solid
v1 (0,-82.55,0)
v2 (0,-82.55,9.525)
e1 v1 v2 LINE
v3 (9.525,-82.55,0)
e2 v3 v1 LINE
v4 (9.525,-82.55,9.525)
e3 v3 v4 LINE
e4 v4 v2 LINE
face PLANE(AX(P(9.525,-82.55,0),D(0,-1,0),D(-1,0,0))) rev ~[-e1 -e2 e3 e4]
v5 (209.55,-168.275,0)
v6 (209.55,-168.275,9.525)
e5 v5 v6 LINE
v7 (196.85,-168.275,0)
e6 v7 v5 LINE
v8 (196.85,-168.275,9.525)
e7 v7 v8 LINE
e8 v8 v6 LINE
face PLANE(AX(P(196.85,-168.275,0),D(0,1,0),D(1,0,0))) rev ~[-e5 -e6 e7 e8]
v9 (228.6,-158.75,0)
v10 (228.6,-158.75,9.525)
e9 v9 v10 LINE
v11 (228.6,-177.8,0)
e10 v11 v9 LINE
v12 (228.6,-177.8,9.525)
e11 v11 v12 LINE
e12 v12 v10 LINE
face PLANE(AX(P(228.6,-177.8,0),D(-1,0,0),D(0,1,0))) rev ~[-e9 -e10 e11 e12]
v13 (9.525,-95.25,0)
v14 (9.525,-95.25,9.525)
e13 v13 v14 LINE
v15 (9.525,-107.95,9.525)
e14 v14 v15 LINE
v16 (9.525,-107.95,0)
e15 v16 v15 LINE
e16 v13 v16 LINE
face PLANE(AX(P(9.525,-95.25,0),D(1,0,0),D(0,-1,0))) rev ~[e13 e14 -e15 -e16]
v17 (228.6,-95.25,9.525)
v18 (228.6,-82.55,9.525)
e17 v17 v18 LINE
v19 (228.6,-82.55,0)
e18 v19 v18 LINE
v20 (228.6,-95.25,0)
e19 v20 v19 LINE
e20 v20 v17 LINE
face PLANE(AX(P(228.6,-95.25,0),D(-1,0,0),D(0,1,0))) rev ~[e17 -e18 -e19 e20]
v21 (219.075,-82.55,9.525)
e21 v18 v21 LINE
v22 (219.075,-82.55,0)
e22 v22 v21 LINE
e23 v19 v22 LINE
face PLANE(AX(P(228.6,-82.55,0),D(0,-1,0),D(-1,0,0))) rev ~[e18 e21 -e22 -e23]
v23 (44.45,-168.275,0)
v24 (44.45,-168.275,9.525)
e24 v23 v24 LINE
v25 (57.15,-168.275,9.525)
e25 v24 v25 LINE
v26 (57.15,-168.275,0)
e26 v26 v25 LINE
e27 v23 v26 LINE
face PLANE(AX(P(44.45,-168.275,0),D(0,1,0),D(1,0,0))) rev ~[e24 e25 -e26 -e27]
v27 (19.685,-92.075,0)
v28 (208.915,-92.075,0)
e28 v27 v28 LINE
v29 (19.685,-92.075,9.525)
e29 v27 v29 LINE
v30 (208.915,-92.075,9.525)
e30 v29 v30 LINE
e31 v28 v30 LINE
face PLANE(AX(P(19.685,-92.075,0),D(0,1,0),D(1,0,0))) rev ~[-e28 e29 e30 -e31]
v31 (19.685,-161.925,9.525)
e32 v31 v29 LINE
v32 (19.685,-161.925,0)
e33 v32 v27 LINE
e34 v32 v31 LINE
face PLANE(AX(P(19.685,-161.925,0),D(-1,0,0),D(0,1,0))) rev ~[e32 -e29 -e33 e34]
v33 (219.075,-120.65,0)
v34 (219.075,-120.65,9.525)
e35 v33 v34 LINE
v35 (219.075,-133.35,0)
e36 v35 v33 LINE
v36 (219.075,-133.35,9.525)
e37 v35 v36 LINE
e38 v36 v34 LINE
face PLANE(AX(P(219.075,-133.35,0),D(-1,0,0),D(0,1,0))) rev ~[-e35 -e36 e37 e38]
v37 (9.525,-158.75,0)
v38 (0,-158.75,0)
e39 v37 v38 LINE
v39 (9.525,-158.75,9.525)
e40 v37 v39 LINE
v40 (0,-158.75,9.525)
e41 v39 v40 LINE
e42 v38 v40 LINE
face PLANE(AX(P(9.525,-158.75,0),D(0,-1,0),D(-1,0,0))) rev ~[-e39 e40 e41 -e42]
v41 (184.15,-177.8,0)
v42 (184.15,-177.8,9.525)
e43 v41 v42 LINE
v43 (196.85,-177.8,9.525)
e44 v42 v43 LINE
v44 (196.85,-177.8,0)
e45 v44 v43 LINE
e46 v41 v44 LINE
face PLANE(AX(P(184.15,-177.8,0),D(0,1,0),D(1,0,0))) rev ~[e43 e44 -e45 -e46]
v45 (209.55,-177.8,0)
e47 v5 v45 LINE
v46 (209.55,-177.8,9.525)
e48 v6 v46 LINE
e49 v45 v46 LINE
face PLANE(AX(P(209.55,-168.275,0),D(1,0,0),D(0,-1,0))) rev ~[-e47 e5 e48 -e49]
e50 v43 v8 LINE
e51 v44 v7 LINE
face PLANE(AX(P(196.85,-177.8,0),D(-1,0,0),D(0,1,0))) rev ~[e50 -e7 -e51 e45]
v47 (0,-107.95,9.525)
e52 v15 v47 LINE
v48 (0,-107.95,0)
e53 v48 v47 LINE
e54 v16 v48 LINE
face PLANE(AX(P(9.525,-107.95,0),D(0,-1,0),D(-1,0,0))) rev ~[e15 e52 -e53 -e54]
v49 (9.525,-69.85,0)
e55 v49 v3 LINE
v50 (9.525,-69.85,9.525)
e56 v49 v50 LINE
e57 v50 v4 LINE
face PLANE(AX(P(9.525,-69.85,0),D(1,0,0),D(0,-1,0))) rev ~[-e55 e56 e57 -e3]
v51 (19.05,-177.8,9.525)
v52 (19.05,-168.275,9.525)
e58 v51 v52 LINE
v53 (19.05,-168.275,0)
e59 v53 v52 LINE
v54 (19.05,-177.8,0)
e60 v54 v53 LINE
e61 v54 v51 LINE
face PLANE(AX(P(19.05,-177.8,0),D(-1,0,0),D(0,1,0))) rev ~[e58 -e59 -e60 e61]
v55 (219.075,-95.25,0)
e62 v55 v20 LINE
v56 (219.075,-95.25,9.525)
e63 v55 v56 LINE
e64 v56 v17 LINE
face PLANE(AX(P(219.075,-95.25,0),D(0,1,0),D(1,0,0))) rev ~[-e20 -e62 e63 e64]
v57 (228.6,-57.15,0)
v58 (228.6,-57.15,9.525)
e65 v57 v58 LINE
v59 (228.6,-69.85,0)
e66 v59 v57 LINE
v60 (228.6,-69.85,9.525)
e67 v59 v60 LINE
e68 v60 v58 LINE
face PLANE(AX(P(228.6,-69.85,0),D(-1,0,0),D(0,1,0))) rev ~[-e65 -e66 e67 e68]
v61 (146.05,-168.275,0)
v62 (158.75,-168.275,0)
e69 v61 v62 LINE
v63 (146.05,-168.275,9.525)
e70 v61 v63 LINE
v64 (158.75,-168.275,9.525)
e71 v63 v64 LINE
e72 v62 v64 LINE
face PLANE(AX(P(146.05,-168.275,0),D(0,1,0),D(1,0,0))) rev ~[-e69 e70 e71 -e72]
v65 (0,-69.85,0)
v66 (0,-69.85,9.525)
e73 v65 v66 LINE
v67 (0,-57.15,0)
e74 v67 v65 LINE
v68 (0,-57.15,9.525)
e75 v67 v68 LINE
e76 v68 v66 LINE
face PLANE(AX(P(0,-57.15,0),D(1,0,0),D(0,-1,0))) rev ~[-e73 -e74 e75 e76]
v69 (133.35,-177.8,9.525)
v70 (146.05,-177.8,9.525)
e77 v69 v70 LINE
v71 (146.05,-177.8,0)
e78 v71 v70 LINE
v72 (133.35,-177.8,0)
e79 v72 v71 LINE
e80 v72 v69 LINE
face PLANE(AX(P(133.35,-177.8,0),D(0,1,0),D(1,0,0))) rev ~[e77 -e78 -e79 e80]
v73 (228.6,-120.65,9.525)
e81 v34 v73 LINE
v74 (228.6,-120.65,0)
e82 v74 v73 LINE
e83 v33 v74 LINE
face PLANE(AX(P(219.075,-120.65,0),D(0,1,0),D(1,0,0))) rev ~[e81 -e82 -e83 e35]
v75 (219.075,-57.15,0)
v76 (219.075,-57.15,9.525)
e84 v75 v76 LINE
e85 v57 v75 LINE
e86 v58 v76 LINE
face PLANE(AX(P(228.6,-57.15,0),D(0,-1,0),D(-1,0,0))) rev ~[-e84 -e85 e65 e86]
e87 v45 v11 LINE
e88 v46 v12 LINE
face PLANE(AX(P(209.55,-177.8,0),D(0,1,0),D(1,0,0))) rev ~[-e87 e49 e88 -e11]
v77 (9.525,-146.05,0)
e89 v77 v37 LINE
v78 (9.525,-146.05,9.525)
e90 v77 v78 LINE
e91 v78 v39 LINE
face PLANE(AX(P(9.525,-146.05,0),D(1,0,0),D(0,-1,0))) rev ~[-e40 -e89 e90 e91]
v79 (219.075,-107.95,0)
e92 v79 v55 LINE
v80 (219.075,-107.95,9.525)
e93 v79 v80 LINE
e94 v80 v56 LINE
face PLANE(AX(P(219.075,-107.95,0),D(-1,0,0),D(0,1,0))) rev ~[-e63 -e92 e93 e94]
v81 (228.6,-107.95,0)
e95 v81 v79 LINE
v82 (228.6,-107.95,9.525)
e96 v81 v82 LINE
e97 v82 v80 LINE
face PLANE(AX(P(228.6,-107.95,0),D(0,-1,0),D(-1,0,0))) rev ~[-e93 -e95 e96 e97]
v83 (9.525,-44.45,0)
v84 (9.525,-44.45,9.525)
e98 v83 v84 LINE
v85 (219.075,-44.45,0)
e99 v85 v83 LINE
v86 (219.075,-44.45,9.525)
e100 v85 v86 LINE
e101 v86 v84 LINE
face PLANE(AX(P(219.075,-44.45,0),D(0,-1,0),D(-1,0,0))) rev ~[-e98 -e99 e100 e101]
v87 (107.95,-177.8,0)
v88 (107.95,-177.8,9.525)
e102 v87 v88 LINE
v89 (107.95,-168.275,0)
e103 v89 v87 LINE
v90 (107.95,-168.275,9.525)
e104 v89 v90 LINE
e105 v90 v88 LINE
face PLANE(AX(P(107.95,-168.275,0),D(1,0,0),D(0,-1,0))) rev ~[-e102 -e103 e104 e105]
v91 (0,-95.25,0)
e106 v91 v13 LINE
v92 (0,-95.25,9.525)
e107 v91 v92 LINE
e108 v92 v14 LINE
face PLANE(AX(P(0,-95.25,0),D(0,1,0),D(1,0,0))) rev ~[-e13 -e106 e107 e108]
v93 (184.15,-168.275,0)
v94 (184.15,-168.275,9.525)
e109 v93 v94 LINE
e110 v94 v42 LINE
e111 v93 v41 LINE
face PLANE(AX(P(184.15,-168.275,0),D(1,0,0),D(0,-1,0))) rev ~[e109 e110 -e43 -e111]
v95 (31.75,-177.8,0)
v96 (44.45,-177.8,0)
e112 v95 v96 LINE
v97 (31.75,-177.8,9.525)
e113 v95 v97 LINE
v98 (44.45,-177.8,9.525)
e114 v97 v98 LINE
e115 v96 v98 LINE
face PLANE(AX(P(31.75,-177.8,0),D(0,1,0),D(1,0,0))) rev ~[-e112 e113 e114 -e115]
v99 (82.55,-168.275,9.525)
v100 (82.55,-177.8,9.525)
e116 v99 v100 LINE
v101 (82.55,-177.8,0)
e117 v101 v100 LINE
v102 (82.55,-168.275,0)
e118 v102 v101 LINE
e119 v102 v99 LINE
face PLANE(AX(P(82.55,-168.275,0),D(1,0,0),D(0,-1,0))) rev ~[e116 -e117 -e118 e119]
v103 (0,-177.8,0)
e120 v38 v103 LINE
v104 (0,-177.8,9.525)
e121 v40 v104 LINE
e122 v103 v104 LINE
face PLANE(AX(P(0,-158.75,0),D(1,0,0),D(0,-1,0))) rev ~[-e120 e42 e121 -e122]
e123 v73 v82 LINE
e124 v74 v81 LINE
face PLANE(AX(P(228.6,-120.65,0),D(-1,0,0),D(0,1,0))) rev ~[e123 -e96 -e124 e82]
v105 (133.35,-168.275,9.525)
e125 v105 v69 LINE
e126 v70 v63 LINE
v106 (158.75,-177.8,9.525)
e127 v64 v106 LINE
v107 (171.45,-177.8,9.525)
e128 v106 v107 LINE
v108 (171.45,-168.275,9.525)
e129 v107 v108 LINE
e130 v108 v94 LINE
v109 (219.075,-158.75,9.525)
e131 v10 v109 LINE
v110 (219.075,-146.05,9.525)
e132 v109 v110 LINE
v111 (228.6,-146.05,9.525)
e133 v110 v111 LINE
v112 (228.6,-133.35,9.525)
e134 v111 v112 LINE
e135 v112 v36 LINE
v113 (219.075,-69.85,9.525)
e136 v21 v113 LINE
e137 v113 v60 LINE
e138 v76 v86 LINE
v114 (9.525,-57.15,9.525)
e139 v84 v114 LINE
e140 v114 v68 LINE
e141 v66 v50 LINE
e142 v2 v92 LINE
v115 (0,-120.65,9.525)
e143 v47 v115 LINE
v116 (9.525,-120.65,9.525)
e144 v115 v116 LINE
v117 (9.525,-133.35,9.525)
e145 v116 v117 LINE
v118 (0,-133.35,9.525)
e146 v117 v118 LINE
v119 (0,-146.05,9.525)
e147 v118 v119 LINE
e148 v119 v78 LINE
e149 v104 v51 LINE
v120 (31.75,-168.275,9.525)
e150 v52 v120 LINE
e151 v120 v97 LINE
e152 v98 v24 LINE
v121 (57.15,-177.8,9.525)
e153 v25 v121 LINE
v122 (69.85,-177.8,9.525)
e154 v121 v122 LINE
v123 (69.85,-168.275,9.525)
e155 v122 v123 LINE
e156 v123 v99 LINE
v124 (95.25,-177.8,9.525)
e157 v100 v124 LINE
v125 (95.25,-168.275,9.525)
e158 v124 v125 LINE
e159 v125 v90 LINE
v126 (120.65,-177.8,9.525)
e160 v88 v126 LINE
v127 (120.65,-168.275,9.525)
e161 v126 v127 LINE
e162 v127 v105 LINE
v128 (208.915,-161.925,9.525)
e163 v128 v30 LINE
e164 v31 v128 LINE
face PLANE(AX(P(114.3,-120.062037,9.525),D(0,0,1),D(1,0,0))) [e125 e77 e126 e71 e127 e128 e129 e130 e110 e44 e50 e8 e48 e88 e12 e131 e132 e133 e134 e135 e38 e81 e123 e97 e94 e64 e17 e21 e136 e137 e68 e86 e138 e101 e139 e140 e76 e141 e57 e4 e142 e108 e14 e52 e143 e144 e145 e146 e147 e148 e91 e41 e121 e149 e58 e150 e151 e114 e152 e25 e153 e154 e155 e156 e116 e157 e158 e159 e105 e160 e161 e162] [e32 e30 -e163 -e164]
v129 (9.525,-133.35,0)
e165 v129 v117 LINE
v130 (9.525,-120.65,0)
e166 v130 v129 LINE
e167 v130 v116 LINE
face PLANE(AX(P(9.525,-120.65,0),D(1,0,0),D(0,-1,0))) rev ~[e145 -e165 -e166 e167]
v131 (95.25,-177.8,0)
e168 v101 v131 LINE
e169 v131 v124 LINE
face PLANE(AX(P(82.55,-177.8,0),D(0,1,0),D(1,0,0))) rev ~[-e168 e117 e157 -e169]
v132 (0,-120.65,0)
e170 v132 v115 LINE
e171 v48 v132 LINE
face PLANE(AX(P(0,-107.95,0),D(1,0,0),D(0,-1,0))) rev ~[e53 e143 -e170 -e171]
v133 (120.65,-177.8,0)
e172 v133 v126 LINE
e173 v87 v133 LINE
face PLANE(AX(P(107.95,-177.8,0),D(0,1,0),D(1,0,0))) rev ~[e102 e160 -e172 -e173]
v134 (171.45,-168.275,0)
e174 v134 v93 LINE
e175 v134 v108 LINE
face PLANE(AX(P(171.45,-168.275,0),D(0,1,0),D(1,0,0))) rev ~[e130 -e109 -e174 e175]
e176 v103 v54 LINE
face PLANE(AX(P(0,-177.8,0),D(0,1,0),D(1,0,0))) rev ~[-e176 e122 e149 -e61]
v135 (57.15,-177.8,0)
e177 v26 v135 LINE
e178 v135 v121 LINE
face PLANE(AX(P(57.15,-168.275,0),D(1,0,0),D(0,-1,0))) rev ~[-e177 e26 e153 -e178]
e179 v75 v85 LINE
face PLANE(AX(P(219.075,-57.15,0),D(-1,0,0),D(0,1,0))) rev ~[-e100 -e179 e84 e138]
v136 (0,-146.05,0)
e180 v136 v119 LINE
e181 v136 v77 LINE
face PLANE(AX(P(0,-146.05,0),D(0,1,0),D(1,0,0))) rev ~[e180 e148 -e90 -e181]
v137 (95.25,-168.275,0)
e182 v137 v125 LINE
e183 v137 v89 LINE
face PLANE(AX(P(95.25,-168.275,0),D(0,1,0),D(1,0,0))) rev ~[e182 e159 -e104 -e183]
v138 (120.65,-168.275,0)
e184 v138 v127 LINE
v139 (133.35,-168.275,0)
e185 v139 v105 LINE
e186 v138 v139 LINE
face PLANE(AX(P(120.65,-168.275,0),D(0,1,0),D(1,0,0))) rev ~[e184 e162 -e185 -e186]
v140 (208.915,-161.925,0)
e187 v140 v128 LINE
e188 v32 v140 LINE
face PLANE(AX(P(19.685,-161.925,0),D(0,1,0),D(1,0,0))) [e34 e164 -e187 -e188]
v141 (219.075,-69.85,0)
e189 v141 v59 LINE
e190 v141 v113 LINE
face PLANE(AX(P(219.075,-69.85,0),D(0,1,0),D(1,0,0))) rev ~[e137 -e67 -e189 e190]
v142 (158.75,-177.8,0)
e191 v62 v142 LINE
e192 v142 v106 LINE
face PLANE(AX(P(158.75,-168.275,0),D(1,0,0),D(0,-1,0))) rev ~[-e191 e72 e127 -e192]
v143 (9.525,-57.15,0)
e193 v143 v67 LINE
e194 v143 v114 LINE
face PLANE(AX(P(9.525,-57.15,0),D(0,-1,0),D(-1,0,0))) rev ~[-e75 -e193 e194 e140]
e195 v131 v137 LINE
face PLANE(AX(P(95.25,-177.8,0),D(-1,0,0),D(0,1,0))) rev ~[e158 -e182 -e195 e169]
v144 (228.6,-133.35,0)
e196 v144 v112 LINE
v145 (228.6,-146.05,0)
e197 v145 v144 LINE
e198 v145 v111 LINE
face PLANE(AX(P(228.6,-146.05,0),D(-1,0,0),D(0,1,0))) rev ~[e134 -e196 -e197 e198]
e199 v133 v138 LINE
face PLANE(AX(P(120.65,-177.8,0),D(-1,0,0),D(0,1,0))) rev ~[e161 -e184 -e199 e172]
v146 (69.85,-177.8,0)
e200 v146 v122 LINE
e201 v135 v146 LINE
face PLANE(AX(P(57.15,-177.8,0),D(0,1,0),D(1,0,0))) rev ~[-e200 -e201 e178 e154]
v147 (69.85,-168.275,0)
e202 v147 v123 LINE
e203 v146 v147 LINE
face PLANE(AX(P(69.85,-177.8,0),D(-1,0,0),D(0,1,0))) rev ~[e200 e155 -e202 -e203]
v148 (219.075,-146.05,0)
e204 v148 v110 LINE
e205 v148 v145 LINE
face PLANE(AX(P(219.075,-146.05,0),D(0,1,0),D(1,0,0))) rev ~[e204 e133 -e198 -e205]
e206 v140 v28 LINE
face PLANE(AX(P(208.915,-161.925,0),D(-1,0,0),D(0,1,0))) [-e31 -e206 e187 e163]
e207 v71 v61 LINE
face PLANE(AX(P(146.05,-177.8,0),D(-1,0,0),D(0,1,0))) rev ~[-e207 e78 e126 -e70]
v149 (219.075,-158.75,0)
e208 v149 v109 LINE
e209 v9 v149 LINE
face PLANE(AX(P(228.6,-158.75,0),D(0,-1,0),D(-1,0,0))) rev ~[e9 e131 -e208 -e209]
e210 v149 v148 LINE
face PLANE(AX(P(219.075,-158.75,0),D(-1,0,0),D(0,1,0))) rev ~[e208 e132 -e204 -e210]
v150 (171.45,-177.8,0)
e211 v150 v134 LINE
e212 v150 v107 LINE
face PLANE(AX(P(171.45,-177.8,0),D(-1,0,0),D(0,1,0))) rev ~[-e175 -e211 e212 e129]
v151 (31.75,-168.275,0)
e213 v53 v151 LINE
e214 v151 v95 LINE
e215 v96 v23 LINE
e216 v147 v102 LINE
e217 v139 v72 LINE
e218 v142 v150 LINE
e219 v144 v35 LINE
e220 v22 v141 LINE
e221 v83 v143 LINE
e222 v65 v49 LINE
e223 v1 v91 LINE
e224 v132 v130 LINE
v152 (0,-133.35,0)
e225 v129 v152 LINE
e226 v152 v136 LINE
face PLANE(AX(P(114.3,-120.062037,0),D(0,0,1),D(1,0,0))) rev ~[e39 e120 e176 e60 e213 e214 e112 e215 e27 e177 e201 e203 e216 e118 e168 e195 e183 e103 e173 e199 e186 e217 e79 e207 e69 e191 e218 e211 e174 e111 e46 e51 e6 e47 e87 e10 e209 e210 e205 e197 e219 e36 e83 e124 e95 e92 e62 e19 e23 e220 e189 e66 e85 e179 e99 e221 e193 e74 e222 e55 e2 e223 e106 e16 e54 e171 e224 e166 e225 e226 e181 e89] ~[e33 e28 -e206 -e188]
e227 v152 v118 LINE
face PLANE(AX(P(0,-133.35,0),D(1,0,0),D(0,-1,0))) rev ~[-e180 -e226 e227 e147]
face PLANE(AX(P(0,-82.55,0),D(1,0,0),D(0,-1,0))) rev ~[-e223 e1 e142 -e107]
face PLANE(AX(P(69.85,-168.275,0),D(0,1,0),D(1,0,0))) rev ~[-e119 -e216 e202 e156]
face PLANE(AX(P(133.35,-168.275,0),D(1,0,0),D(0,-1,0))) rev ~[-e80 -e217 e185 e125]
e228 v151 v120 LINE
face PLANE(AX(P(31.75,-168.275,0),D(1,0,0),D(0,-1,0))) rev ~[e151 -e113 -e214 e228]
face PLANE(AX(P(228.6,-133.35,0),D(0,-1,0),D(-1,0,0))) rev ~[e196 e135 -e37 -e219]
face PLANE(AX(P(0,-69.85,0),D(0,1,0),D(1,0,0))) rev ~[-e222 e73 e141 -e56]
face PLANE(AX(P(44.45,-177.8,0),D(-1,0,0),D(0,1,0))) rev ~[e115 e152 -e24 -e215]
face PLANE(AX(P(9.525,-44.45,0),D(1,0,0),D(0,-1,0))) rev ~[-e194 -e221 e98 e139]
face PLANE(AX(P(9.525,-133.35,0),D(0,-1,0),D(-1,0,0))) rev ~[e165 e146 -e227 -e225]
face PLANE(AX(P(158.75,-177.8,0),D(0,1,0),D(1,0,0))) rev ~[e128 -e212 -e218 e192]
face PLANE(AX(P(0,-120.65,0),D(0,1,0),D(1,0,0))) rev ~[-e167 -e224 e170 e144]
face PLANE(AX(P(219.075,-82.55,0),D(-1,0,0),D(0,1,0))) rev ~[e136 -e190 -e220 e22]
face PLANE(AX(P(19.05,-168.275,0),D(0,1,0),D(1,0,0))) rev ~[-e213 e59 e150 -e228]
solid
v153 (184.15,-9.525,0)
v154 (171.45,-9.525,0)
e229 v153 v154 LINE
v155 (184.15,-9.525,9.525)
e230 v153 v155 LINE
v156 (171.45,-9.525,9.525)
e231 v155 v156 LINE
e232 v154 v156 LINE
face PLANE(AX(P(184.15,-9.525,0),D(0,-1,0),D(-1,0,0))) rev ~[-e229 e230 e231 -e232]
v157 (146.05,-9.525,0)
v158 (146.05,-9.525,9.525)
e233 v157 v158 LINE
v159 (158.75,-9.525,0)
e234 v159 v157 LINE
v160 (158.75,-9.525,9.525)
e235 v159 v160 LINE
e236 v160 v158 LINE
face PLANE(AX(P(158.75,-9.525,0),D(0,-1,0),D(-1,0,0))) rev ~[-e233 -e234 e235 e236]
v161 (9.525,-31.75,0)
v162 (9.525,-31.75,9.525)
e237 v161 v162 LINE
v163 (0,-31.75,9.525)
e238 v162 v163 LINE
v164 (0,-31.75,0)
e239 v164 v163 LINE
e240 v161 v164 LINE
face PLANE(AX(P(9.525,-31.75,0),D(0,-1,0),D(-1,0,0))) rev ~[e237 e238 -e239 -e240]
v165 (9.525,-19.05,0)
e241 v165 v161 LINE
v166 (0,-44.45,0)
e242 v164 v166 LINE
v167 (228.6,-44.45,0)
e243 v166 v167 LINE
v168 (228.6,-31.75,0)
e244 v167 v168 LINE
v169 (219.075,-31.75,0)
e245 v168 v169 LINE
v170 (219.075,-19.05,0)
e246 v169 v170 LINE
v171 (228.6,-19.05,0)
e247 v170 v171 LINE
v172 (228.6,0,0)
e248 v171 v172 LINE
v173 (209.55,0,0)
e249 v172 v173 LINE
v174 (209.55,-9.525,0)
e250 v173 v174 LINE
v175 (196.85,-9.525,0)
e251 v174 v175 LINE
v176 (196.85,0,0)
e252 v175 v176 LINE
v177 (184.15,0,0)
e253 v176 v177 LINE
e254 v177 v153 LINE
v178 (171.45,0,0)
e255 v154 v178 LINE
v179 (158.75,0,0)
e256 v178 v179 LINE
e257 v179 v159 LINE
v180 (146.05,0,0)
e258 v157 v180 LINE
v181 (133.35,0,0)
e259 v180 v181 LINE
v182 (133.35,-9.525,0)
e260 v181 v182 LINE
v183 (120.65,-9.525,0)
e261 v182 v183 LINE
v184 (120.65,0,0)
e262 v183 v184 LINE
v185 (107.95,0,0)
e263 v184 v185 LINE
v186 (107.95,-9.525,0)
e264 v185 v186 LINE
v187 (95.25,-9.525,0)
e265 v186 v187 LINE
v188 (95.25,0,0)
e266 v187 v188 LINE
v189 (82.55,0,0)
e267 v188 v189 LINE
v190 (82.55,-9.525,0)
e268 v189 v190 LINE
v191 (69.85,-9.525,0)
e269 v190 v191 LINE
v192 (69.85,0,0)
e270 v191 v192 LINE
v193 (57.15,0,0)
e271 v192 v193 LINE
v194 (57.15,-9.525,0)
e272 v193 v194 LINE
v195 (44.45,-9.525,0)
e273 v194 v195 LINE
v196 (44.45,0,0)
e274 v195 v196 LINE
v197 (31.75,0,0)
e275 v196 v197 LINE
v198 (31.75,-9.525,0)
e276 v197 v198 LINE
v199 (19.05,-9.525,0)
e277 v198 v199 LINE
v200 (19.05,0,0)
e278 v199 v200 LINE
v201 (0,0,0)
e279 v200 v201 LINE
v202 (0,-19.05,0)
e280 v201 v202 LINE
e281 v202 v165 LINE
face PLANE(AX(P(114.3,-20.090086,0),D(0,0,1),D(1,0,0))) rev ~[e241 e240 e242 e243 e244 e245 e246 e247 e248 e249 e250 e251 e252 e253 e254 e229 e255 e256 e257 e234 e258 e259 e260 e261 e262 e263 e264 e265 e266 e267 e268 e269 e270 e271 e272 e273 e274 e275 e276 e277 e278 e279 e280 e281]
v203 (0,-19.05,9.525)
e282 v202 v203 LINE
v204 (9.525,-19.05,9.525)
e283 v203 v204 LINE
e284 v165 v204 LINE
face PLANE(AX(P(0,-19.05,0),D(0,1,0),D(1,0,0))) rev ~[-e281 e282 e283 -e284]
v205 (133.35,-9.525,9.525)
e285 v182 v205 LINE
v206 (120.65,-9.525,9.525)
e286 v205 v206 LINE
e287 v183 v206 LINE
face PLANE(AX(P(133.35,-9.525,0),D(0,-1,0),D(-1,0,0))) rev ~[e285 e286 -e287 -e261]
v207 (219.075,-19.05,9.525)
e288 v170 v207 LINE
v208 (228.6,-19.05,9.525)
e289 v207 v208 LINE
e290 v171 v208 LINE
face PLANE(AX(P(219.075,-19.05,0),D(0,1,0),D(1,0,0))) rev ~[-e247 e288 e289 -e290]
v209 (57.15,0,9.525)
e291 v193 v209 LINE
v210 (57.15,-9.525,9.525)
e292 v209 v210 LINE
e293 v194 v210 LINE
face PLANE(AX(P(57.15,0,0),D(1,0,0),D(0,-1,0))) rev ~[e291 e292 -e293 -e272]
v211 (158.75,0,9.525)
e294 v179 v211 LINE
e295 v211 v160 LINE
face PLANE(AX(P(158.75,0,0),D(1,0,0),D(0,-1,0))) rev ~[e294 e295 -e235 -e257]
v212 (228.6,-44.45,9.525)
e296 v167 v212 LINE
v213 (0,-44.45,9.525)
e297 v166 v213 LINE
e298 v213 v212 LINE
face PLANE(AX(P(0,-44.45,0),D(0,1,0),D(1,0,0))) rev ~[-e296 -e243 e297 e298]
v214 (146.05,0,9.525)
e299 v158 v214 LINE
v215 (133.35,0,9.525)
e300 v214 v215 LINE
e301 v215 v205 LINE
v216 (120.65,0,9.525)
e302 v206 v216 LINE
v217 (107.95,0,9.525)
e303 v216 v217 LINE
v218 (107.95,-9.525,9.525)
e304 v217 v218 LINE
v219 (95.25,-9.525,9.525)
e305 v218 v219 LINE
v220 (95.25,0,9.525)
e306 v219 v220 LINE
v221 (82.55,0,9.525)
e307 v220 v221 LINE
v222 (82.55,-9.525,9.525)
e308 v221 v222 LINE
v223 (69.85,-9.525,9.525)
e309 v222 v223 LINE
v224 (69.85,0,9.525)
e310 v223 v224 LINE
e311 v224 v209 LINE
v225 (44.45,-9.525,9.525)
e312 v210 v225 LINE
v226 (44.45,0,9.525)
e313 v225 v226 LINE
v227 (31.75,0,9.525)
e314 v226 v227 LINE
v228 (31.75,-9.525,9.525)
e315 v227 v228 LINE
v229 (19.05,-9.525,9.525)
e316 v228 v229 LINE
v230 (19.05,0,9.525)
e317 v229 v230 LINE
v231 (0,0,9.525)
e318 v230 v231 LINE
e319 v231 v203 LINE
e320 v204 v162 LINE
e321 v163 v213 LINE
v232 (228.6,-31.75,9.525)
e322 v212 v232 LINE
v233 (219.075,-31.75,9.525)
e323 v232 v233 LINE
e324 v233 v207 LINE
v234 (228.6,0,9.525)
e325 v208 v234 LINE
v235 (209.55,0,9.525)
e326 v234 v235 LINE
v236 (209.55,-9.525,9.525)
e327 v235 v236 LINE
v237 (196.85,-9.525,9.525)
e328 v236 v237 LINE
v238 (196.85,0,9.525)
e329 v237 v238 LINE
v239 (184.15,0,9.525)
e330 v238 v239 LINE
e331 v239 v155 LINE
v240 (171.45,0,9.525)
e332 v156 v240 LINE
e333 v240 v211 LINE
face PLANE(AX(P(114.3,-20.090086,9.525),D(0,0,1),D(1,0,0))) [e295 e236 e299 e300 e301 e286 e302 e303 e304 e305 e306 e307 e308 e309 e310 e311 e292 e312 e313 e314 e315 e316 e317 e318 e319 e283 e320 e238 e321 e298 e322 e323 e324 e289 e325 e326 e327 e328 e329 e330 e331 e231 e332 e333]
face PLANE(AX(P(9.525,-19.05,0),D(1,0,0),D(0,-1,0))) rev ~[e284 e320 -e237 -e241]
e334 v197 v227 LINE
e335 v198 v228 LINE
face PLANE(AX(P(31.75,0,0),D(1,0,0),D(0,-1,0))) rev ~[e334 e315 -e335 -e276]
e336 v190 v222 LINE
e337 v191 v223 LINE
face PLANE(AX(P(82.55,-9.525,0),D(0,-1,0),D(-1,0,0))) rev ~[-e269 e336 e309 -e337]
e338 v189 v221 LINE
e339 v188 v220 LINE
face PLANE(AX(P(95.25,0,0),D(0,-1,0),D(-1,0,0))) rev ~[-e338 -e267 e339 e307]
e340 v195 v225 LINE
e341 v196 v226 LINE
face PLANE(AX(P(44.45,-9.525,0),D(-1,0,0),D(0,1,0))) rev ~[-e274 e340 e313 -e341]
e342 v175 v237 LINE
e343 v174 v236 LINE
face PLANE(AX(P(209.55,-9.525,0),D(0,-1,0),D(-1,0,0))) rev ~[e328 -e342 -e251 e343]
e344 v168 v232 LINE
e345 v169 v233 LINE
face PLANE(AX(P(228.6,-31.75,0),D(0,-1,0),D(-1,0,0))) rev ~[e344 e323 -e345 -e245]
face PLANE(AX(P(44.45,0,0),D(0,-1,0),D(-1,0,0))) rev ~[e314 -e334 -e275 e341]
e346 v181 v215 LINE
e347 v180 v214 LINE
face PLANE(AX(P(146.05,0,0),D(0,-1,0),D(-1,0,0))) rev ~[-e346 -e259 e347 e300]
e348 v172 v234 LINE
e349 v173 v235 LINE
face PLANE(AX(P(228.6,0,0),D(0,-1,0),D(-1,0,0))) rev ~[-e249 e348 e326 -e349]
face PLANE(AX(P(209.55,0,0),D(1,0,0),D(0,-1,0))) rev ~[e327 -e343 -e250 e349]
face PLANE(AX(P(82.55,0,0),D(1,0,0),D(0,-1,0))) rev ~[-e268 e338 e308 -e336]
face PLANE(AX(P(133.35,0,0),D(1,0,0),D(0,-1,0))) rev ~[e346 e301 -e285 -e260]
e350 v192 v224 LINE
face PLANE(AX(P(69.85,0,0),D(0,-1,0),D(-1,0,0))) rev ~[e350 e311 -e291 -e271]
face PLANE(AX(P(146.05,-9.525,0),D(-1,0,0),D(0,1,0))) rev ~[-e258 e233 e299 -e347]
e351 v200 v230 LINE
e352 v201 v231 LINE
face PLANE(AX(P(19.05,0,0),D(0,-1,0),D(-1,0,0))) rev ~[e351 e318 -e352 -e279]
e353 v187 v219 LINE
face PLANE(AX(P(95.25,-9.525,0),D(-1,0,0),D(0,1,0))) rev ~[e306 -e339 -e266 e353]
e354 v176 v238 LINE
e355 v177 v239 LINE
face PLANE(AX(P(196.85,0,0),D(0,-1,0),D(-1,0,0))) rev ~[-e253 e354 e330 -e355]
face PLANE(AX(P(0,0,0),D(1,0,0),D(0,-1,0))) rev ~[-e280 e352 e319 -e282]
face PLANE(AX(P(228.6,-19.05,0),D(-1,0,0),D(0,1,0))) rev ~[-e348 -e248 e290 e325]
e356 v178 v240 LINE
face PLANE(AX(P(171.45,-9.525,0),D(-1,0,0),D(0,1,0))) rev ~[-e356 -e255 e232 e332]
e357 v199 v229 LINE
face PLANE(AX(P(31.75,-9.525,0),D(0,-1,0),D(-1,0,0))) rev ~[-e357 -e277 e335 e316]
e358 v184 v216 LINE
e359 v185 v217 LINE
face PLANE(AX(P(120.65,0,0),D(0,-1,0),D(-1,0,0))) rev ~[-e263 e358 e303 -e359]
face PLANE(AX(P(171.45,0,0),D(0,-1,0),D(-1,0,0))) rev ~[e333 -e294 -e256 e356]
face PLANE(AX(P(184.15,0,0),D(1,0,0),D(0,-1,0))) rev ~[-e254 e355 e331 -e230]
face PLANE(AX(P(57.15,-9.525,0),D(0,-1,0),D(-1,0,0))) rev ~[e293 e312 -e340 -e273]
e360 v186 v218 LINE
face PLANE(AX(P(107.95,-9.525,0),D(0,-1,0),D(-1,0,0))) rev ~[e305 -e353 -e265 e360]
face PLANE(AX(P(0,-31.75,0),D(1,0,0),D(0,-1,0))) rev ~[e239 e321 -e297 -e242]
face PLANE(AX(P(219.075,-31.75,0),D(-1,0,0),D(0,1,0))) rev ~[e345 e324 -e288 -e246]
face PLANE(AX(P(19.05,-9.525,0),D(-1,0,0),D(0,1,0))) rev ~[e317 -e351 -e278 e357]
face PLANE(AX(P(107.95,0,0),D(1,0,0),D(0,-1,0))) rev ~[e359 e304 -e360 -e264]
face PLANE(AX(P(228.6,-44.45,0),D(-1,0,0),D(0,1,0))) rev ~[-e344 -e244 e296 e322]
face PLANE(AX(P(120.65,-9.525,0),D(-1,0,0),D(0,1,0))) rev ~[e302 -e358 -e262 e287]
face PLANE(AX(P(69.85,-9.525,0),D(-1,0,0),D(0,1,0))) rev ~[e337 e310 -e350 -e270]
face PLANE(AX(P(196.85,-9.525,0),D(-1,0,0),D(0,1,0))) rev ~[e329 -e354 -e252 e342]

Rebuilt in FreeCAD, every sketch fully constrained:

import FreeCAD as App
import Part
import Sketcher

V = App.Vector
Q = App.Units.Quantity

doc = App.newDocument("Part")
params = doc.addObject("Spreadsheet::Sheet", "Params")
for row, (alias, value) in enumerate([
    ("sketch1_width", "9 in"),
    ("sketch1_width2", "0.5 in"),
    ("sketch1_width3", "0.375 in"),
    ("pad1_length", "0.375 in"),
    ("sketch2_width", "0.5 in"),
    ("sketch2_width2", "8.25 in"),
    ("sketch2_width3", "7.45 in"),
    ("sketch2_height", "2.75 in"),
    ("pad2_length", "0.375 in"),
], start=1):
    params.set(f"A{row}", alias)
    params.set(f"B{row}", "=" + value)
    params.setAlias(f"B{row}", alias)

body = doc.addObject("PartDesign::Body", "Body")

# Sketch on XY plane
sketch1 = doc.addObject("Sketcher::SketchObject", "Sketch")
body.addObject(sketch1)
sketch1.AttachmentSupport = (doc.XY_Plane, [""])
sketch1.MapMode = "FlatFace"
sketch1.addGeometry([
    Part.LineSegment(V(19, 0, 0), V(0, 0, 0)),  # 0
    Part.LineSegment(V(0, 0, 0), V(0, -19, 0)),  # 1
    Part.LineSegment(V(0, -19, 0), V(10, -19, 0)),  # 2
    Part.LineSegment(V(10, -19, 0), V(10, -32, 0)),  # 3
    Part.LineSegment(V(10, -32, 0), V(0, -32, 0)),  # 4
    Part.LineSegment(V(0, -32, 0), V(0, -44, 0)),  # 5
    Part.LineSegment(V(0, -44, 0), V(229, -44, 0)),  # 6
    Part.LineSegment(V(229, -44, 0), V(229, -32, 0)),  # 7
    Part.LineSegment(V(229, -32, 0), V(219, -32, 0)),  # 8
    Part.LineSegment(V(219, -32, 0), V(219, -19, 0)),  # 9
    Part.LineSegment(V(219, -19, 0), V(229, -19, 0)),  # 10
    Part.LineSegment(V(229, -19, 0), V(229, 0, 0)),  # 11
    Part.LineSegment(V(229, 0, 0), V(210, 0, 0)),  # 12
    Part.LineSegment(V(210, 0, 0), V(210, -10, 0)),  # 13
    Part.LineSegment(V(210, -10, 0), V(197, -10, 0)),  # 14
    Part.LineSegment(V(197, -10, 0), V(197, 0, 0)),  # 15
    Part.LineSegment(V(197, 0, 0), V(184, 0, 0)),  # 16
    Part.LineSegment(V(184, 0, 0), V(184, -10, 0)),  # 17
    Part.LineSegment(V(184, -10, 0), V(171, -10, 0)),  # 18
    Part.LineSegment(V(171, -10, 0), V(171, 0, 0)),  # 19
    Part.LineSegment(V(171, 0, 0), V(159, 0, 0)),  # 20
    Part.LineSegment(V(159, 0, 0), V(159, -10, 0)),  # 21
    Part.LineSegment(V(159, -10, 0), V(146, -10, 0)),  # 22
    Part.LineSegment(V(146, -10, 0), V(146, 0, 0)),  # 23
    Part.LineSegment(V(146, 0, 0), V(133, 0, 0)),  # 24
    Part.LineSegment(V(133, 0, 0), V(133, -10, 0)),  # 25
    Part.LineSegment(V(133, -10, 0), V(121, -10, 0)),  # 26
    Part.LineSegment(V(121, -10, 0), V(121, 0, 0)),  # 27
    Part.LineSegment(V(121, 0, 0), V(108, 0, 0)),  # 28
    Part.LineSegment(V(108, 0, 0), V(108, -10, 0)),  # 29
    Part.LineSegment(V(108, -10, 0), V(95, -10, 0)),  # 30
    Part.LineSegment(V(95, -10, 0), V(95, 0, 0)),  # 31
    Part.LineSegment(V(95, 0, 0), V(83, 0, 0)),  # 32
    Part.LineSegment(V(83, 0, 0), V(83, -10, 0)),  # 33
    Part.LineSegment(V(83, -10, 0), V(70, -10, 0)),  # 34
    Part.LineSegment(V(70, -10, 0), V(70, 0, 0)),  # 35
    Part.LineSegment(V(70, 0, 0), V(57, 0, 0)),  # 36
    Part.LineSegment(V(57, 0, 0), V(57, -10, 0)),  # 37
    Part.LineSegment(V(57, -10, 0), V(44, -10, 0)),  # 38
    Part.LineSegment(V(44, -10, 0), V(44, 0, 0)),  # 39
    Part.LineSegment(V(44, 0, 0), V(32, 0, 0)),  # 40
    Part.LineSegment(V(32, 0, 0), V(32, -10, 0)),  # 41
    Part.LineSegment(V(32, -10, 0), V(19, -10, 0)),  # 42
    Part.LineSegment(V(19, -10, 0), V(19, 0, 0)),  # 43
], False)
sketch1.addConstraint([
    Sketcher.Constraint("Coincident", 0, 2, 1, 1),
    Sketcher.Constraint("Coincident", 1, 2, 2, 1),
    Sketcher.Constraint("Coincident", 2, 2, 3, 1),
    Sketcher.Constraint("Coincident", 3, 2, 4, 1),
    Sketcher.Constraint("Coincident", 4, 2, 5, 1),
    Sketcher.Constraint("Coincident", 5, 2, 6, 1),
    Sketcher.Constraint("Coincident", 6, 2, 7, 1),
    Sketcher.Constraint("Coincident", 7, 2, 8, 1),
    Sketcher.Constraint("Coincident", 8, 2, 9, 1),
    Sketcher.Constraint("Coincident", 9, 2, 10, 1),
    Sketcher.Constraint("Coincident", 10, 2, 11, 1),
    Sketcher.Constraint("Coincident", 11, 2, 12, 1),
    Sketcher.Constraint("Coincident", 12, 2, 13, 1),
    Sketcher.Constraint("Coincident", 13, 2, 14, 1),
    Sketcher.Constraint("Coincident", 14, 2, 15, 1),
    Sketcher.Constraint("Coincident", 15, 2, 16, 1),
    Sketcher.Constraint("Coincident", 16, 2, 17, 1),
    Sketcher.Constraint("Coincident", 17, 2, 18, 1),
    Sketcher.Constraint("Coincident", 18, 2, 19, 1),
    Sketcher.Constraint("Coincident", 19, 2, 20, 1),
    Sketcher.Constraint("Coincident", 20, 2, 21, 1),
    Sketcher.Constraint("Coincident", 21, 2, 22, 1),
    Sketcher.Constraint("Coincident", 22, 2, 23, 1),
    Sketcher.Constraint("Coincident", 23, 2, 24, 1),
    Sketcher.Constraint("Coincident", 24, 2, 25, 1),
    Sketcher.Constraint("Coincident", 25, 2, 26, 1),
    Sketcher.Constraint("Coincident", 26, 2, 27, 1),
    Sketcher.Constraint("Coincident", 27, 2, 28, 1),
    Sketcher.Constraint("Coincident", 28, 2, 29, 1),
    Sketcher.Constraint("Coincident", 29, 2, 30, 1),
    Sketcher.Constraint("Coincident", 30, 2, 31, 1),
    Sketcher.Constraint("Coincident", 31, 2, 32, 1),
    Sketcher.Constraint("Coincident", 32, 2, 33, 1),
    Sketcher.Constraint("Coincident", 33, 2, 34, 1),
    Sketcher.Constraint("Coincident", 34, 2, 35, 1),
    Sketcher.Constraint("Coincident", 35, 2, 36, 1),
    Sketcher.Constraint("Coincident", 36, 2, 37, 1),
    Sketcher.Constraint("Coincident", 37, 2, 38, 1),
    Sketcher.Constraint("Coincident", 38, 2, 39, 1),
    Sketcher.Constraint("Coincident", 39, 2, 40, 1),
    Sketcher.Constraint("Coincident", 40, 2, 41, 1),
    Sketcher.Constraint("Coincident", 41, 2, 42, 1),
    Sketcher.Constraint("Coincident", 42, 2, 43, 1),
    Sketcher.Constraint("Coincident", 43, 2, 0, 1),
    Sketcher.Constraint("Horizontal", 0),
    Sketcher.Constraint("Vertical", 1),
    Sketcher.Constraint("Horizontal", 2),
    Sketcher.Constraint("Vertical", 3),
    Sketcher.Constraint("Horizontal", 4),
    Sketcher.Constraint("Vertical", 5),
    Sketcher.Constraint("Horizontal", 6),
    Sketcher.Constraint("Vertical", 7),
    Sketcher.Constraint("Horizontal", 8),
    Sketcher.Constraint("Vertical", 9),
    Sketcher.Constraint("Horizontal", 10),
    Sketcher.Constraint("Vertical", 11),
    Sketcher.Constraint("Horizontal", 12),
    Sketcher.Constraint("Vertical", 13),
    Sketcher.Constraint("Horizontal", 14),
    Sketcher.Constraint("Vertical", 15),
    Sketcher.Constraint("Horizontal", 16),
    Sketcher.Constraint("Vertical", 17),
    Sketcher.Constraint("Horizontal", 18),
    Sketcher.Constraint("Vertical", 19),
    Sketcher.Constraint("Horizontal", 20),
    Sketcher.Constraint("Vertical", 21),
    Sketcher.Constraint("Horizontal", 22),
    Sketcher.Constraint("Vertical", 23),
    Sketcher.Constraint("Horizontal", 24),
    Sketcher.Constraint("Vertical", 25),
    Sketcher.Constraint("Horizontal", 26),
    Sketcher.Constraint("Vertical", 27),
    Sketcher.Constraint("Horizontal", 28),
    Sketcher.Constraint("Vertical", 29),
    Sketcher.Constraint("Horizontal", 30),
    Sketcher.Constraint("Vertical", 31),
    Sketcher.Constraint("Horizontal", 32),
    Sketcher.Constraint("Vertical", 33),
    Sketcher.Constraint("Horizontal", 34),
    Sketcher.Constraint("Vertical", 35),
    Sketcher.Constraint("Horizontal", 36),
    Sketcher.Constraint("Vertical", 37),
    Sketcher.Constraint("Horizontal", 38),
    Sketcher.Constraint("Vertical", 39),
    Sketcher.Constraint("Horizontal", 40),
    Sketcher.Constraint("Vertical", 41),
    Sketcher.Constraint("Horizontal", 42),
    Sketcher.Constraint("Vertical", 43),
    Sketcher.Constraint("Coincident", 0, 2, -1, 1),
    Sketcher.Constraint("PointOnObject", 4, 2, -2),
    Sketcher.Constraint("PointOnObject", 11, 2, -1),
    Sketcher.Constraint("PointOnObject", 15, 2, -1),
    Sketcher.Constraint("PointOnObject", 19, 2, -1),
    Sketcher.Constraint("PointOnObject", 23, 2, -1),
    Sketcher.Constraint("PointOnObject", 27, 2, -1),
    Sketcher.Constraint("PointOnObject", 31, 2, -1),
    Sketcher.Constraint("PointOnObject", 35, 2, -1),
    Sketcher.Constraint("PointOnObject", 39, 2, -1),
    Sketcher.Constraint("Horizontal", 4, 2, 7, 2),
    Sketcher.Constraint("Horizontal", 2, 2, 9, 2),
    Sketcher.Constraint("Horizontal", 14, 2, 17, 2),
    Sketcher.Constraint("Horizontal", 18, 2, 21, 2),
    Sketcher.Constraint("Horizontal", 22, 2, 25, 2),
    Sketcher.Constraint("Horizontal", 26, 2, 29, 2),
    Sketcher.Constraint("Horizontal", 30, 2, 33, 2),
    Sketcher.Constraint("Horizontal", 34, 2, 37, 2),
    Sketcher.Constraint("Horizontal", 38, 2, 41, 2),
    Sketcher.Constraint("Vertical", 7, 2, 10, 2),
    Sketcher.Constraint("Equal", 4, 8),
    Sketcher.Constraint("Equal", 0, 12),
    Sketcher.Constraint("Equal", 14, 16),
    Sketcher.Constraint("Equal", 16, 18),
    Sketcher.Constraint("Equal", 18, 20),
    Sketcher.Constraint("Equal", 20, 22),
    Sketcher.Constraint("Equal", 22, 24),
    Sketcher.Constraint("Equal", 24, 26),
    Sketcher.Constraint("Equal", 26, 28),
    Sketcher.Constraint("Equal", 28, 30),
    Sketcher.Constraint("Equal", 30, 32),
    Sketcher.Constraint("Equal", 32, 34),
    Sketcher.Constraint("Equal", 34, 36),
    Sketcher.Constraint("Equal", 36, 38),
    Sketcher.Constraint("Equal", 38, 40),
    Sketcher.Constraint("Equal", 40, 42),
    Sketcher.Constraint("Equal", 12, 1),
    Sketcher.Constraint("Equal", 42, 3),
    Sketcher.Constraint("Equal", 3, 5),
    Sketcher.Constraint("Equal", 10, 13),
    Sketcher.Constraint("DistanceX", 6, 1, 6, 2, Q("9 in")),
    Sketcher.Constraint("DistanceX", 14, 2, 14, 1, Q("0.5 in")),
    Sketcher.Constraint("DistanceX", 2, 1, 2, 2, Q("0.375 in")),
])
sketch1.setExpression("Constraints[128]", "Params.sketch1_width")
sketch1.setExpression("Constraints[129]", "Params.sketch1_width2")
sketch1.setExpression("Constraints[130]", "Params.sketch1_width3")
pad1 = doc.addObject("PartDesign::Pad", "Pad")
body.addObject(pad1)
pad1.Profile = sketch1
pad1.setExpression("Length", "Params.pad1_length")
body2 = doc.addObject("PartDesign::Body", "Body001")

# Sketch on XY plane
sketch2 = doc.addObject("Sketcher::SketchObject", "Sketch001")
body2.addObject(sketch2)
sketch2.AttachmentSupport = (doc.getObject("XY_Plane001"), [""])
sketch2.MapMode = "FlatFace"
sketch2.addGeometry([
    Part.LineSegment(V(219, -44, 0), V(10, -44, 0)),  # 0
    Part.LineSegment(V(10, -44, 0), V(10, -57, 0)),  # 1
    Part.LineSegment(V(10, -57, 0), V(0, -57, 0)),  # 2
    Part.LineSegment(V(0, -57, 0), V(0, -70, 0)),  # 3
    Part.LineSegment(V(0, -70, 0), V(10, -70, 0)),  # 4
    Part.LineSegment(V(10, -70, 0), V(10, -83, 0)),  # 5
    Part.LineSegment(V(10, -83, 0), V(0, -83, 0)),  # 6
    Part.LineSegment(V(0, -83, 0), V(0, -95, 0)),  # 7
    Part.LineSegment(V(0, -95, 0), V(10, -95, 0)),  # 8
    Part.LineSegment(V(10, -95, 0), V(10, -108, 0)),  # 9
    Part.LineSegment(V(10, -108, 0), V(0, -108, 0)),  # 10
    Part.LineSegment(V(0, -108, 0), V(0, -121, 0)),  # 11
    Part.LineSegment(V(0, -121, 0), V(10, -121, 0)),  # 12
    Part.LineSegment(V(10, -121, 0), V(10, -133, 0)),  # 13
    Part.LineSegment(V(10, -133, 0), V(0, -133, 0)),  # 14
    Part.LineSegment(V(0, -133, 0), V(0, -146, 0)),  # 15
    Part.LineSegment(V(0, -146, 0), V(10, -146, 0)),  # 16
    Part.LineSegment(V(10, -146, 0), V(10, -159, 0)),  # 17
    Part.LineSegment(V(10, -159, 0), V(0, -159, 0)),  # 18
    Part.LineSegment(V(0, -159, 0), V(0, -178, 0)),  # 19
    Part.LineSegment(V(0, -178, 0), V(19, -178, 0)),  # 20
    Part.LineSegment(V(19, -178, 0), V(19, -168, 0)),  # 21
    Part.LineSegment(V(19, -168, 0), V(32, -168, 0)),  # 22
    Part.LineSegment(V(32, -168, 0), V(32, -178, 0)),  # 23
    Part.LineSegment(V(32, -178, 0), V(44, -178, 0)),  # 24
    Part.LineSegment(V(44, -178, 0), V(44, -168, 0)),  # 25
    Part.LineSegment(V(44, -168, 0), V(57, -168, 0)),  # 26
    Part.LineSegment(V(57, -168, 0), V(57, -178, 0)),  # 27
    Part.LineSegment(V(57, -178, 0), V(70, -178, 0)),  # 28
    Part.LineSegment(V(70, -178, 0), V(70, -168, 0)),  # 29
    Part.LineSegment(V(70, -168, 0), V(83, -168, 0)),  # 30
    Part.LineSegment(V(83, -168, 0), V(83, -178, 0)),  # 31
    Part.LineSegment(V(83, -178, 0), V(95, -178, 0)),  # 32
    Part.LineSegment(V(95, -178, 0), V(95, -168, 0)),  # 33
    Part.LineSegment(V(95, -168, 0), V(108, -168, 0)),  # 34
    Part.LineSegment(V(108, -168, 0), V(108, -178, 0)),  # 35
    Part.LineSegment(V(108, -178, 0), V(121, -178, 0)),  # 36
    Part.LineSegment(V(121, -178, 0), V(121, -168, 0)),  # 37
    Part.LineSegment(V(121, -168, 0), V(133, -168, 0)),  # 38
    Part.LineSegment(V(133, -168, 0), V(133, -178, 0)),  # 39
    Part.LineSegment(V(133, -178, 0), V(146, -178, 0)),  # 40
    Part.LineSegment(V(146, -178, 0), V(146, -168, 0)),  # 41
    Part.LineSegment(V(146, -168, 0), V(159, -168, 0)),  # 42
    Part.LineSegment(V(159, -168, 0), V(159, -178, 0)),  # 43
    Part.LineSegment(V(159, -178, 0), V(171, -178, 0)),  # 44
    Part.LineSegment(V(171, -178, 0), V(171, -168, 0)),  # 45
    Part.LineSegment(V(171, -168, 0), V(184, -168, 0)),  # 46
    Part.LineSegment(V(184, -168, 0), V(184, -178, 0)),  # 47
    Part.LineSegment(V(184, -178, 0), V(197, -178, 0)),  # 48
    Part.LineSegment(V(197, -178, 0), V(197, -168, 0)),  # 49
    Part.LineSegment(V(197, -168, 0), V(210, -168, 0)),  # 50
    Part.LineSegment(V(210, -168, 0), V(210, -178, 0)),  # 51
    Part.LineSegment(V(210, -178, 0), V(229, -178, 0)),  # 52
    Part.LineSegment(V(229, -178, 0), V(229, -159, 0)),  # 53
    Part.LineSegment(V(229, -159, 0), V(219, -159, 0)),  # 54
    Part.LineSegment(V(219, -159, 0), V(219, -146, 0)),  # 55
    Part.LineSegment(V(219, -146, 0), V(229, -146, 0)),  # 56
    Part.LineSegment(V(229, -146, 0), V(229, -133, 0)),  # 57
    Part.LineSegment(V(229, -133, 0), V(219, -133, 0)),  # 58
    Part.LineSegment(V(219, -133, 0), V(219, -121, 0)),  # 59
    Part.LineSegment(V(219, -121, 0), V(229, -121, 0)),  # 60
    Part.LineSegment(V(229, -121, 0), V(229, -108, 0)),  # 61
    Part.LineSegment(V(229, -108, 0), V(219, -108, 0)),  # 62
    Part.LineSegment(V(219, -108, 0), V(219, -95, 0)),  # 63
    Part.LineSegment(V(219, -95, 0), V(229, -95, 0)),  # 64
    Part.LineSegment(V(229, -95, 0), V(229, -83, 0)),  # 65
    Part.LineSegment(V(229, -83, 0), V(219, -83, 0)),  # 66
    Part.LineSegment(V(219, -83, 0), V(219, -70, 0)),  # 67
    Part.LineSegment(V(219, -70, 0), V(229, -70, 0)),  # 68
    Part.LineSegment(V(229, -70, 0), V(229, -57, 0)),  # 69
    Part.LineSegment(V(229, -57, 0), V(219, -57, 0)),  # 70
    Part.LineSegment(V(219, -57, 0), V(219, -44, 0)),  # 71
    Part.LineSegment(V(209, -162, 0), V(20, -162, 0)),  # 72
    Part.LineSegment(V(20, -162, 0), V(20, -92, 0)),  # 73
    Part.LineSegment(V(20, -92, 0), V(209, -92, 0)),  # 74
    Part.LineSegment(V(209, -92, 0), V(209, -162, 0)),  # 75
], False)
sketch2.addConstraint([
    Sketcher.Constraint("Coincident", 0, 2, 1, 1),
    Sketcher.Constraint("Coincident", 1, 2, 2, 1),
    Sketcher.Constraint("Coincident", 2, 2, 3, 1),
    Sketcher.Constraint("Coincident", 3, 2, 4, 1),
    Sketcher.Constraint("Coincident", 4, 2, 5, 1),
    Sketcher.Constraint("Coincident", 5, 2, 6, 1),
    Sketcher.Constraint("Coincident", 6, 2, 7, 1),
    Sketcher.Constraint("Coincident", 7, 2, 8, 1),
    Sketcher.Constraint("Coincident", 8, 2, 9, 1),
    Sketcher.Constraint("Coincident", 9, 2, 10, 1),
    Sketcher.Constraint("Coincident", 10, 2, 11, 1),
    Sketcher.Constraint("Coincident", 11, 2, 12, 1),
    Sketcher.Constraint("Coincident", 12, 2, 13, 1),
    Sketcher.Constraint("Coincident", 13, 2, 14, 1),
    Sketcher.Constraint("Coincident", 14, 2, 15, 1),
    Sketcher.Constraint("Coincident", 15, 2, 16, 1),
    Sketcher.Constraint("Coincident", 16, 2, 17, 1),
    Sketcher.Constraint("Coincident", 17, 2, 18, 1),
    Sketcher.Constraint("Coincident", 18, 2, 19, 1),
    Sketcher.Constraint("Coincident", 19, 2, 20, 1),
    Sketcher.Constraint("Coincident", 20, 2, 21, 1),
    Sketcher.Constraint("Coincident", 21, 2, 22, 1),
    Sketcher.Constraint("Coincident", 22, 2, 23, 1),
    Sketcher.Constraint("Coincident", 23, 2, 24, 1),
    Sketcher.Constraint("Coincident", 24, 2, 25, 1),
    Sketcher.Constraint("Coincident", 25, 2, 26, 1),
    Sketcher.Constraint("Coincident", 26, 2, 27, 1),
    Sketcher.Constraint("Coincident", 27, 2, 28, 1),
    Sketcher.Constraint("Coincident", 28, 2, 29, 1),
    Sketcher.Constraint("Coincident", 29, 2, 30, 1),
    Sketcher.Constraint("Coincident", 30, 2, 31, 1),
    Sketcher.Constraint("Coincident", 31, 2, 32, 1),
    Sketcher.Constraint("Coincident", 32, 2, 33, 1),
    Sketcher.Constraint("Coincident", 33, 2, 34, 1),
    Sketcher.Constraint("Coincident", 34, 2, 35, 1),
    Sketcher.Constraint("Coincident", 35, 2, 36, 1),
    Sketcher.Constraint("Coincident", 36, 2, 37, 1),
    Sketcher.Constraint("Coincident", 37, 2, 38, 1),
    Sketcher.Constraint("Coincident", 38, 2, 39, 1),
    Sketcher.Constraint("Coincident", 39, 2, 40, 1),
    Sketcher.Constraint("Coincident", 40, 2, 41, 1),
    Sketcher.Constraint("Coincident", 41, 2, 42, 1),
    Sketcher.Constraint("Coincident", 42, 2, 43, 1),
    Sketcher.Constraint("Coincident", 43, 2, 44, 1),
    Sketcher.Constraint("Coincident", 44, 2, 45, 1),
    Sketcher.Constraint("Coincident", 45, 2, 46, 1),
    Sketcher.Constraint("Coincident", 46, 2, 47, 1),
    Sketcher.Constraint("Coincident", 47, 2, 48, 1),
    Sketcher.Constraint("Coincident", 48, 2, 49, 1),
    Sketcher.Constraint("Coincident", 49, 2, 50, 1),
    Sketcher.Constraint("Coincident", 50, 2, 51, 1),
    Sketcher.Constraint("Coincident", 51, 2, 52, 1),
    Sketcher.Constraint("Coincident", 52, 2, 53, 1),
    Sketcher.Constraint("Coincident", 53, 2, 54, 1),
    Sketcher.Constraint("Coincident", 54, 2, 55, 1),
    Sketcher.Constraint("Coincident", 55, 2, 56, 1),
    Sketcher.Constraint("Coincident", 56, 2, 57, 1),
    Sketcher.Constraint("Coincident", 57, 2, 58, 1),
    Sketcher.Constraint("Coincident", 58, 2, 59, 1),
    Sketcher.Constraint("Coincident", 59, 2, 60, 1),
    Sketcher.Constraint("Coincident", 60, 2, 61, 1),
    Sketcher.Constraint("Coincident", 61, 2, 62, 1),
    Sketcher.Constraint("Coincident", 62, 2, 63, 1),
    Sketcher.Constraint("Coincident", 63, 2, 64, 1),
    Sketcher.Constraint("Coincident", 64, 2, 65, 1),
    Sketcher.Constraint("Coincident", 65, 2, 66, 1),
    Sketcher.Constraint("Coincident", 66, 2, 67, 1),
    Sketcher.Constraint("Coincident", 67, 2, 68, 1),
    Sketcher.Constraint("Coincident", 68, 2, 69, 1),
    Sketcher.Constraint("Coincident", 69, 2, 70, 1),
    Sketcher.Constraint("Coincident", 70, 2, 71, 1),
    Sketcher.Constraint("Coincident", 71, 2, 0, 1),
    Sketcher.Constraint("Coincident", 72, 2, 73, 1),
    Sketcher.Constraint("Coincident", 73, 2, 74, 1),
    Sketcher.Constraint("Coincident", 74, 2, 75, 1),
    Sketcher.Constraint("Coincident", 75, 2, 72, 1),
    Sketcher.Constraint("Horizontal", 0),
    Sketcher.Constraint("Vertical", 1),
    Sketcher.Constraint("Horizontal", 2),
    Sketcher.Constraint("Vertical", 3),
    Sketcher.Constraint("Horizontal", 4),
    Sketcher.Constraint("Vertical", 5),
    Sketcher.Constraint("Horizontal", 6),
    Sketcher.Constraint("Vertical", 7),
    Sketcher.Constraint("Horizontal", 8),
    Sketcher.Constraint("Vertical", 9),
    Sketcher.Constraint("Horizontal", 10),
    Sketcher.Constraint("Vertical", 11),
    Sketcher.Constraint("Horizontal", 12),
    Sketcher.Constraint("Vertical", 13),
    Sketcher.Constraint("Horizontal", 14),
    Sketcher.Constraint("Vertical", 15),
    Sketcher.Constraint("Horizontal", 16),
    Sketcher.Constraint("Vertical", 17),
    Sketcher.Constraint("Horizontal", 18),
    Sketcher.Constraint("Vertical", 19),
    Sketcher.Constraint("Horizontal", 20),
    Sketcher.Constraint("Vertical", 21),
    Sketcher.Constraint("Horizontal", 22),
    Sketcher.Constraint("Vertical", 23),
    Sketcher.Constraint("Horizontal", 24),
    Sketcher.Constraint("Vertical", 25),
    Sketcher.Constraint("Horizontal", 26),
    Sketcher.Constraint("Vertical", 27),
    Sketcher.Constraint("Horizontal", 28),
    Sketcher.Constraint("Vertical", 29),
    Sketcher.Constraint("Horizontal", 30),
    Sketcher.Constraint("Vertical", 31),
    Sketcher.Constraint("Horizontal", 32),
    Sketcher.Constraint("Vertical", 33),
    Sketcher.Constraint("Horizontal", 34),
    Sketcher.Constraint("Vertical", 35),
    Sketcher.Constraint("Horizontal", 36),
    Sketcher.Constraint("Vertical", 37),
    Sketcher.Constraint("Horizontal", 38),
    Sketcher.Constraint("Vertical", 39),
    Sketcher.Constraint("Horizontal", 40),
    Sketcher.Constraint("Vertical", 41),
    Sketcher.Constraint("Horizontal", 42),
    Sketcher.Constraint("Vertical", 43),
    Sketcher.Constraint("Horizontal", 44),
    Sketcher.Constraint("Vertical", 45),
    Sketcher.Constraint("Horizontal", 46),
    Sketcher.Constraint("Vertical", 47),
    Sketcher.Constraint("Horizontal", 48),
    Sketcher.Constraint("Vertical", 49),
    Sketcher.Constraint("Horizontal", 50),
    Sketcher.Constraint("Vertical", 51),
    Sketcher.Constraint("Horizontal", 52),
    Sketcher.Constraint("Vertical", 53),
    Sketcher.Constraint("Horizontal", 54),
    Sketcher.Constraint("Vertical", 55),
    Sketcher.Constraint("Horizontal", 56),
    Sketcher.Constraint("Vertical", 57),
    Sketcher.Constraint("Horizontal", 58),
    Sketcher.Constraint("Vertical", 59),
    Sketcher.Constraint("Horizontal", 60),
    Sketcher.Constraint("Vertical", 61),
    Sketcher.Constraint("Horizontal", 62),
    Sketcher.Constraint("Vertical", 63),
    Sketcher.Constraint("Horizontal", 64),
    Sketcher.Constraint("Vertical", 65),
    Sketcher.Constraint("Horizontal", 66),
    Sketcher.Constraint("Vertical", 67),
    Sketcher.Constraint("Horizontal", 68),
    Sketcher.Constraint("Vertical", 69),
    Sketcher.Constraint("Horizontal", 70),
    Sketcher.Constraint("Vertical", 71),
    Sketcher.Constraint("Horizontal", 72),
    Sketcher.Constraint("Vertical", 73),
    Sketcher.Constraint("Horizontal", 74),
    Sketcher.Constraint("Vertical", 75),
    Sketcher.Constraint("PointOnObject", 2, 2, -2),
    Sketcher.Constraint("PointOnObject", 6, 2, -2),
    Sketcher.Constraint("PointOnObject", 10, 2, -2),
    Sketcher.Constraint("PointOnObject", 14, 2, -2),
    Sketcher.Constraint("PointOnObject", 18, 2, -2),
    Sketcher.Constraint("Horizontal", 20, 2, 23, 2),
    Sketcher.Constraint("Horizontal", 22, 2, 25, 2),
    Sketcher.Constraint("Horizontal", 24, 2, 27, 2),
    Sketcher.Constraint("Horizontal", 26, 2, 29, 2),
    Sketcher.Constraint("Horizontal", 28, 2, 31, 2),
    Sketcher.Constraint("Horizontal", 30, 2, 33, 2),
    Sketcher.Constraint("Horizontal", 32, 2, 35, 2),
    Sketcher.Constraint("Horizontal", 34, 2, 37, 2),
    Sketcher.Constraint("Horizontal", 36, 2, 39, 2),
    Sketcher.Constraint("Horizontal", 38, 2, 41, 2),
    Sketcher.Constraint("Horizontal", 40, 2, 43, 2),
    Sketcher.Constraint("Horizontal", 42, 2, 45, 2),
    Sketcher.Constraint("Horizontal", 44, 2, 47, 2),
    Sketcher.Constraint("Horizontal", 46, 2, 49, 2),
    Sketcher.Constraint("Horizontal", 48, 2, 51, 2),
    Sketcher.Constraint("Horizontal", 18, 2, 53, 2),
    Sketcher.Constraint("Horizontal", 16, 2, 55, 2),
    Sketcher.Constraint("Horizontal", 14, 2, 57, 2),
    Sketcher.Constraint("Horizontal", 12, 2, 59, 2),
    Sketcher.Constraint("Horizontal", 10, 2, 61, 2),
    Sketcher.Constraint("Horizontal", 8, 2, 63, 2),
    Sketcher.Constraint("Horizontal", 6, 2, 65, 2),
    Sketcher.Constraint("Horizontal", 4, 2, 67, 2),
    Sketcher.Constraint("Horizontal", 2, 2, 69, 2),
    Sketcher.Constraint("Vertical", 1, 2, 4, 2),
    Sketcher.Constraint("Vertical", 5, 2, 8, 2),
    Sketcher.Constraint("Vertical", 9, 2, 12, 2),
    Sketcher.Constraint("Vertical", 13, 2, 16, 2),
    Sketcher.Constraint("Vertical", 53, 2, 56, 2),
    Sketcher.Constraint("Vertical", 55, 2, 58, 2),
    Sketcher.Constraint("Vertical", 57, 2, 60, 2),
    Sketcher.Constraint("Vertical", 59, 2, 62, 2),
    Sketcher.Constraint("Vertical", 61, 2, 64, 2),
    Sketcher.Constraint("Vertical", 63, 2, 66, 2),
    Sketcher.Constraint("Vertical", 65, 2, 68, 2),
    Sketcher.Constraint("Vertical", 67, 2, 70, 2),
    Sketcher.Constraint("Equal", 22, 24),
    Sketcher.Constraint("Equal", 24, 26),
    Sketcher.Constraint("Equal", 26, 28),
    Sketcher.Constraint("Equal", 28, 30),
    Sketcher.Constraint("Equal", 30, 32),
    Sketcher.Constraint("Equal", 32, 34),
    Sketcher.Constraint("Equal", 34, 36),
    Sketcher.Constraint("Equal", 36, 38),
    Sketcher.Constraint("Equal", 38, 40),
    Sketcher.Constraint("Equal", 40, 42),
    Sketcher.Constraint("Equal", 42, 44),
    Sketcher.Constraint("Equal", 44, 46),
    Sketcher.Constraint("Equal", 46, 48),
    Sketcher.Constraint("Equal", 48, 50),
    Sketcher.Constraint("Equal", 20, 52),
    Sketcher.Constraint("Equal", 18, 54),
    Sketcher.Constraint("Equal", 50, 1),
    Sketcher.Constraint("Equal", 1, 3),
    Sketcher.Constraint("Equal", 3, 5),
    Sketcher.Constraint("Equal", 5, 7),
    Sketcher.Constraint("Equal", 7, 9),
    Sketcher.Constraint("Equal", 9, 11),
    Sketcher.Constraint("Equal", 11, 13),
    Sketcher.Constraint("Equal", 13, 15),
    Sketcher.Constraint("Equal", 15, 17),
    Sketcher.Constraint("Equal", 52, 19),
    Sketcher.Constraint("Equal", 70, 21),
    Sketcher.Constraint("DistanceX", 22, 1, 22, 2, Q("0.5 in")),
    Sketcher.Constraint("DistanceY", 19, 2, -1, 1, Q("7 in")),
    Sketcher.Constraint("DistanceX", -1, 1, 52, 2, Q("9 in")),
    Sketcher.Constraint("DistanceX", 0, 2, 0, 1, Q("8.25 in")),
    Sketcher.Constraint("DistanceX", 72, 2, 72, 1, Q("7.45 in")),
    Sketcher.Constraint("DistanceY", 73, 1, 73, 2, Q("2.75 in")),
    Sketcher.Constraint("DistanceX", -1, 1, 72, 2, Q("0.775 in")),
    Sketcher.Constraint("DistanceY", 72, 2, -1, 1, Q("6.375 in")),
])
sketch2.setExpression("Constraints[220]", "Params.sketch2_width")
sketch2.setExpression("Constraints[223]", "Params.sketch2_width2")
sketch2.setExpression("Constraints[224]", "Params.sketch2_width3")
sketch2.setExpression("Constraints[225]", "Params.sketch2_height")
pad2 = doc.addObject("PartDesign::Pad", "Pad001")
body2.addObject(pad2)
pad2.Profile = sketch2
pad2.setExpression("Length", "Params.pad2_length")

doc.recompute()
